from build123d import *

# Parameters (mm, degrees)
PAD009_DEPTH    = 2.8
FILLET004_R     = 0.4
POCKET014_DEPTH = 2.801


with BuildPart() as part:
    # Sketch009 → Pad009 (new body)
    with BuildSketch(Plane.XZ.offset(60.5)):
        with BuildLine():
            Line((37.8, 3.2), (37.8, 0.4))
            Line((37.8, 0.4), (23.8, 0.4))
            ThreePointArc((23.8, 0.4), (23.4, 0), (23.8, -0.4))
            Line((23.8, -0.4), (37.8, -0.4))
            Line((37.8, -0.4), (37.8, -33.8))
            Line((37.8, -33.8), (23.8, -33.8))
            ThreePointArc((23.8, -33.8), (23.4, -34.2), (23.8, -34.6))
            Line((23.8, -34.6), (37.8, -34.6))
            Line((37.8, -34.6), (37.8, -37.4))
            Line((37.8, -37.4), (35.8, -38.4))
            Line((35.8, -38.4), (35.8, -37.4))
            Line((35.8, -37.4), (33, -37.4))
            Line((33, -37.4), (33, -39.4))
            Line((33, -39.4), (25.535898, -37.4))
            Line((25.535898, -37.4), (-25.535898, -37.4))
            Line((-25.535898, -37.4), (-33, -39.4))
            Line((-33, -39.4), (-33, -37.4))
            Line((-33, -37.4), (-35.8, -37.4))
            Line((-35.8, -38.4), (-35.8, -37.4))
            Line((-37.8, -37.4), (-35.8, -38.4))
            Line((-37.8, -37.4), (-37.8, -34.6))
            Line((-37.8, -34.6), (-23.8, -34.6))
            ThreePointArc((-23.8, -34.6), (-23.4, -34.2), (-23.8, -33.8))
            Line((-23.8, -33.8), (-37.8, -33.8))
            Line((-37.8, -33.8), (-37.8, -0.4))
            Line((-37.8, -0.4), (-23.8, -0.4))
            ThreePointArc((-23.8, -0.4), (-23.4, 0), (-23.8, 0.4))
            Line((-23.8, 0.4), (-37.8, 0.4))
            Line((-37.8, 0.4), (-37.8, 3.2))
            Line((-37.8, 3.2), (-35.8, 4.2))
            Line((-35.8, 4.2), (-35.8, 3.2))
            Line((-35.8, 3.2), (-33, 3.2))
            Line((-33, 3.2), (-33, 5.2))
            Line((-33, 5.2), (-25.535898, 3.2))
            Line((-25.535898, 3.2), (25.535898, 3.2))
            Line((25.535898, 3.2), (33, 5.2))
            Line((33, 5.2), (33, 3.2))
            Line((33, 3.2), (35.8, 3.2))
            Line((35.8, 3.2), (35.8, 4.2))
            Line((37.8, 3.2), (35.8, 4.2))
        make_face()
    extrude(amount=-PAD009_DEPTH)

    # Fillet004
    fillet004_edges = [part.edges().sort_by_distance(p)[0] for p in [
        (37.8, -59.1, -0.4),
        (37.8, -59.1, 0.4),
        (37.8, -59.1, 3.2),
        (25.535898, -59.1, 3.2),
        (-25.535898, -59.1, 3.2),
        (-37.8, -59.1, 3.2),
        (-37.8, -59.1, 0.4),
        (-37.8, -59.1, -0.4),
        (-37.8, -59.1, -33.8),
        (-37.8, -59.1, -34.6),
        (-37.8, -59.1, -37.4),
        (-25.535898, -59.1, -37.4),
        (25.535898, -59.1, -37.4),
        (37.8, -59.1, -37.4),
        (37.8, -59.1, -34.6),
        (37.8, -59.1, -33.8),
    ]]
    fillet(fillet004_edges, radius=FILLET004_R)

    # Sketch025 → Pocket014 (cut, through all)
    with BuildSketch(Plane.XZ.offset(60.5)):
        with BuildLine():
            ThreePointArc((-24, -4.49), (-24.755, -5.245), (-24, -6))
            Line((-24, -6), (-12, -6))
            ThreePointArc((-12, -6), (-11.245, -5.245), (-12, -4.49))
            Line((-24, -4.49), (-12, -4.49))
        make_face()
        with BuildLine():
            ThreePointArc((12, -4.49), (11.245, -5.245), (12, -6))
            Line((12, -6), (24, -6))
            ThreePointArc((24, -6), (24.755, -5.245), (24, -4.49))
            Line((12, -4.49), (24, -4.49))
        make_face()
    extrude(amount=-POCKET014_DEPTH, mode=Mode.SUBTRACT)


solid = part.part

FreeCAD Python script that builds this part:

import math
import FreeCAD as App
import Part
import Sketcher

V = App.Vector
Q = App.Units.Quantity


def edges_at(feature, points):
    """Names of the edges that pass closest to the given points."""
    edges = feature.Shape.Edges
    near = lambda p: min(range(len(edges)), key=lambda i: edges[i].distToShape(Part.Vertex(*p))[0])
    return sorted({f"Edge{near(p) + 1}" for p in points})

doc = App.newDocument("Part")
body = doc.addObject("PartDesign::Body", "Body")

# Sketch on XZ plane
sketch1 = body.newObject("Sketcher::SketchObject", "Sketch")
sketch1.AttachmentSupport = (doc.getObject("XZ_Plane"), [""])
sketch1.MapMode = "FlatFace"
sketch1.AttachmentOffset = App.Placement(V(0, 0, 60.5), App.Rotation())
sketch1.addGeometry([
    Part.LineSegment(V(37.8, 0.4, 0), V(37.8, 3.2, 0)),  # 0
    Part.LineSegment(V(37.8, 3.2, 0), V(35.8, 4.2, 0)),  # 1
    Part.LineSegment(V(35.8, 4.2, 0), V(35.8, 3.2, 0)),  # 2
    Part.LineSegment(V(35.8, 3.2, 0), V(33, 3.2, 0)),  # 3
    Part.LineSegment(V(33, 3.2, 0), V(33, 5.2, 0)),  # 4
    Part.LineSegment(V(33, 5.2, 0), V(25.54, 3.2, 0)),  # 5
    Part.LineSegment(V(25.54, 3.2, 0), V(-25.54, 3.2, 0)),  # 6
    Part.LineSegment(V(-25.54, 3.2, 0), V(-33, 5.2, 0)),  # 7
    Part.LineSegment(V(-33, 5.2, 0), V(-33, 3.2, 0)),  # 8
    Part.LineSegment(V(-33, 3.2, 0), V(-35.8, 3.2, 0)),  # 9
    Part.LineSegment(V(-35.8, 3.2, 0), V(-35.8, 4.2, 0)),  # 10
    Part.LineSegment(V(-35.8, 4.2, 0), V(-37.8, 3.2, 0)),  # 11
    Part.LineSegment(V(-37.8, 3.2, 0), V(-37.8, 0.4, 0)),  # 12
    Part.LineSegment(V(-37.8, 0.4, 0), V(-23.8, 0.4, 0)),  # 13
    Part.ArcOfCircle(Part.Circle(V(-23.8, 0, 0), V(0, 0, 1), 0.4), math.radians(-90), math.radians(90)),  # 14
    Part.LineSegment(V(-23.8, -0.4, 0), V(-37.8, -0.4, 0)),  # 15
    Part.LineSegment(V(-37.8, -0.4, 0), V(-37.8, -33.8, 0)),  # 16
    Part.LineSegment(V(-37.8, -33.8, 0), V(-23.8, -33.8, 0)),  # 17
    Part.ArcOfCircle(Part.Circle(V(-23.8, -34.2, 0), V(0, 0, 1), 0.4), math.radians(-90), math.radians(90)),  # 18
    Part.LineSegment(V(-23.8, -34.6, 0), V(-37.8, -34.6, 0)),  # 19
    Part.LineSegment(V(-37.8, -34.6, 0), V(-37.8, -37.4, 0)),  # 20
    Part.LineSegment(V(-37.8, -37.4, 0), V(-35.8, -38.4, 0)),  # 21
    Part.LineSegment(V(-35.8, -38.4, 0), V(-35.8, -37.4, 0)),  # 22
    Part.LineSegment(V(-35.8, -37.4, 0), V(-33, -37.4, 0)),  # 23
    Part.LineSegment(V(-33, -37.4, 0), V(-33, -39.4, 0)),  # 24
    Part.LineSegment(V(-33, -39.4, 0), V(-25.54, -37.4, 0)),  # 25
    Part.LineSegment(V(-25.54, -37.4, 0), V(25.54, -37.4, 0)),  # 26
    Part.LineSegment(V(25.54, -37.4, 0), V(33, -39.4, 0)),  # 27
    Part.LineSegment(V(33, -39.4, 0), V(33, -37.4, 0)),  # 28
    Part.LineSegment(V(33, -37.4, 0), V(35.8, -37.4, 0)),  # 29
    Part.LineSegment(V(35.8, -37.4, 0), V(35.8, -38.4, 0)),  # 30
    Part.LineSegment(V(35.8, -38.4, 0), V(37.8, -37.4, 0)),  # 31
    Part.LineSegment(V(37.8, -37.4, 0), V(37.8, -34.6, 0)),  # 32
    Part.LineSegment(V(37.8, -34.6, 0), V(23.8, -34.6, 0)),  # 33
    Part.ArcOfCircle(Part.Circle(V(23.8, -34.2, 0), V(0, 0, 1), 0.4), math.radians(90), math.radians(270)),  # 34
    Part.LineSegment(V(23.8, -33.8, 0), V(37.8, -33.8, 0)),  # 35
    Part.LineSegment(V(37.8, -33.8, 0), V(37.8, -0.4, 0)),  # 36
    Part.LineSegment(V(37.8, -0.4, 0), V(23.8, -0.4, 0)),  # 37
    Part.ArcOfCircle(Part.Circle(V(23.8, 0, 0), V(0, 0, 1), 0.4), math.radians(90), math.radians(270)),  # 38
    Part.LineSegment(V(23.8, 0.4, 0), V(37.8, 0.4, 0)),  # 39
], False)
sketch1.addConstraint([
    Sketcher.Constraint("Coincident", 0, 2, 1, 1),
    Sketcher.Constraint("Coincident", 1, 2, 2, 1),
    Sketcher.Constraint("Coincident", 2, 2, 3, 1),
    Sketcher.Constraint("Coincident", 3, 2, 4, 1),
    Sketcher.Constraint("Coincident", 4, 2, 5, 1),
    Sketcher.Constraint("Coincident", 5, 2, 6, 1),
    Sketcher.Constraint("Coincident", 6, 2, 7, 1),
    Sketcher.Constraint("Coincident", 7, 2, 8, 1),
    Sketcher.Constraint("Coincident", 8, 2, 9, 1),
    Sketcher.Constraint("Coincident", 9, 2, 10, 1),
    Sketcher.Constraint("Coincident", 10, 2, 11, 1),
    Sketcher.Constraint("Coincident", 11, 2, 12, 1),
    Sketcher.Constraint("Coincident", 12, 2, 13, 1),
    Sketcher.Constraint("Tangent", 13, 2, 14, 2),
    Sketcher.Constraint("Tangent", 14, 1, 15, 1),
    Sketcher.Constraint("Coincident", 15, 2, 16, 1),
    Sketcher.Constraint("Coincident", 16, 2, 17, 1),
    Sketcher.Constraint("Tangent", 17, 2, 18, 2),
    Sketcher.Constraint("Tangent", 18, 1, 19, 1),
    Sketcher.Constraint("Coincident", 19, 2, 20, 1),
    Sketcher.Constraint("Coincident", 20, 2, 21, 1),
    Sketcher.Constraint("Coincident", 21, 2, 22, 1),
    Sketcher.Constraint("Coincident", 22, 2, 23, 1),
    Sketcher.Constraint("Coincident", 23, 2, 24, 1),
    Sketcher.Constraint("Coincident", 24, 2, 25, 1),
    Sketcher.Constraint("Coincident", 25, 2, 26, 1),
    Sketcher.Constraint("Coincident", 26, 2, 27, 1),
    Sketcher.Constraint("Coincident", 27, 2, 28, 1),
    Sketcher.Constraint("Coincident", 28, 2, 29, 1),
    Sketcher.Constraint("Coincident", 29, 2, 30, 1),
    Sketcher.Constraint("Coincident", 30, 2, 31, 1),
    Sketcher.Constraint("Coincident", 31, 2, 32, 1),
    Sketcher.Constraint("Coincident", 32, 2, 33, 1),
    Sketcher.Constraint("Tangent", 33, 2, 34, 2),
    Sketcher.Constraint("Tangent", 34, 1, 35, 1),
    Sketcher.Constraint("Coincident", 35, 2, 36, 1),
    Sketcher.Constraint("Coincident", 36, 2, 37, 1),
    Sketcher.Constraint("Tangent", 37, 2, 38, 2),
    Sketcher.Constraint("Tangent", 38, 1, 39, 1),
    Sketcher.Constraint("Coincident", 39, 2, 0, 1),
    Sketcher.Constraint("Vertical", 0),
    Sketcher.Constraint("Vertical", 2),
    Sketcher.Constraint("Horizontal", 3),
    Sketcher.Constraint("Vertical", 4),
    Sketcher.Constraint("Horizontal", 6),
    Sketcher.Constraint("Vertical", 8),
    Sketcher.Constraint("Horizontal", 9),
    Sketcher.Constraint("Vertical", 10),
    Sketcher.Constraint("Vertical", 12),
    Sketcher.Constraint("Horizontal", 13),
    Sketcher.Constraint("Horizontal", 15),
    Sketcher.Constraint("Vertical", 16),
    Sketcher.Constraint("Horizontal", 17),
    Sketcher.Constraint("Horizontal", 19),
    Sketcher.Constraint("Vertical", 20),
    Sketcher.Constraint("Vertical", 22),
    Sketcher.Constraint("Horizontal", 23),
    Sketcher.Constraint("Vertical", 24),
    Sketcher.Constraint("Horizontal", 26),
    Sketcher.Constraint("Vertical", 28),
    Sketcher.Constraint("Horizontal", 29),
    Sketcher.Constraint("Vertical", 30),
    Sketcher.Constraint("Vertical", 32),
    Sketcher.Constraint("Horizontal", 33),
    Sketcher.Constraint("Horizontal", 35),
    Sketcher.Constraint("Vertical", 36),
    Sketcher.Constraint("Horizontal", 37),
    Sketcher.Constraint("Horizontal", 39),
    Sketcher.Constraint("Equal", 14, 18),
    Sketcher.Constraint("Equal", 18, 34),
    Sketcher.Constraint("Equal", 34, 38),
    Sketcher.Constraint("Symmetric", 14, 3, 38, 3, -1, 1),
    Sketcher.Constraint("Symmetric", 18, 3, 34, 3, -2),
    Sketcher.Constraint("Symmetric", 4, 2, 7, 2, -2),
    Sketcher.Constraint("Symmetric", 2, 2, 9, 2, -2),
    Sketcher.Constraint("Symmetric", 0, 2, 11, 2, -2),
    Sketcher.Constraint("Symmetric", 24, 2, 27, 2, -2),
    Sketcher.Constraint("Symmetric", 22, 2, 29, 2, -2),
    Sketcher.Constraint("Symmetric", 20, 2, 31, 2, -2),
    Sketcher.Constraint("Symmetric", 15, 2, 36, 2, -2),
    Sketcher.Constraint("Parallel", 1, 21),
    Sketcher.Constraint("Parallel", 5, 25),
    Sketcher.Constraint("Parallel", 7, 27),
    Sketcher.Constraint("Parallel", 11, 31),
    Sketcher.Constraint("Horizontal", 0, 2, 2, 2),
    Sketcher.Constraint("Horizontal", 3, 2, 5, 2),
    Sketcher.Constraint("Horizontal", 1, 2, 10, 2),
    Sketcher.Constraint("Horizontal", 20, 2, 22, 2),
    Sketcher.Constraint("Horizontal", 23, 2, 25, 2),
    Sketcher.Constraint("Vertical", 14, 3, 18, 3),
    Sketcher.Constraint("Vertical", 12, 2, 15, 2),
    Sketcher.Constraint("Vertical", 16, 2, 19, 2),
    Sketcher.Constraint("Vertical", 10, 2, 21, 2),
    Sketcher.Constraint("Vertical", 8, 2, 23, 2),
    Sketcher.Constraint("Vertical", 6, 2, 25, 2),
    Sketcher.Constraint("Vertical", 5, 2, 26, 2),
    Sketcher.Constraint("Equal", 29, 0),
    Sketcher.Constraint("Equal", 12, 20),
    Sketcher.Constraint("Radius", 14, 0.4),
    Sketcher.Constraint("DistanceX", 13, 1, 13, 2, 14.0),
    Sketcher.Constraint("DistanceY", 2, 2, 2, 1, 1.0),
    Sketcher.Constraint("DistanceY", 4, 1, 4, 2, 2.0),
    Sketcher.Constraint("Angle", 5, Q("-165.000001 deg")),
    Sketcher.Constraint("DistanceX", 3, 2, 3, 1, 2.8),
    Sketcher.Constraint("DistanceY", 16, 2, 16, 1, 33.4),
    Sketcher.Constraint("DistanceX", -1, 1, 3, 2, 33.0),
    Sketcher.Constraint("DistanceX", 1, 2, 0, 2, 2.0),
])
pad1 = body.newObject("PartDesign::Pad", "Pad")
pad1.Profile = sketch1
pad1.Length = 2.8
pad1.Reversed = True
doc.recompute()

fillet = body.newObject("PartDesign::Fillet", "Fillet")
fillet.Base = (pad1, edges_at(pad1, [
    (37.8, -59.1, -0.4),
    (37.8, -59.1, 0.4),
    (37.8, -59.1, 3.2),
    (25.536, -59.1, 3.2),
    (-25.536, -59.1, 3.2),
    (-37.8, -59.1, 3.2),
    (-37.8, -59.1, 0.4),
    (-37.8, -59.1, -0.4),
    (-37.8, -59.1, -33.8),
    (-37.8, -59.1, -34.6),
    (-37.8, -59.1, -37.4),
    (-25.536, -59.1, -37.4),
    (25.536, -59.1, -37.4),
    (37.8, -59.1, -37.4),
    (37.8, -59.1, -34.6),
    (37.8, -59.1, -33.8),
]))
fillet.Radius = 0.4

# Sketch on XZ plane
sketch2 = body.newObject("Sketcher::SketchObject", "Sketch001")
sketch2.AttachmentSupport = (doc.getObject("XZ_Plane"), [""])
sketch2.MapMode = "FlatFace"
sketch2.AttachmentOffset = App.Placement(V(0, 0, 60.5), App.Rotation())
sketch2.addGeometry([
    Part.ArcOfCircle(Part.Circle(V(-24, -5.2, 0), V(0, 0, 1), 0.8), math.radians(90), math.radians(270)),  # 0
    Part.LineSegment(V(-24, -6, 0), V(-12, -6, 0)),  # 1
    Part.ArcOfCircle(Part.Circle(V(-12, -5.2, 0), V(0, 0, 1), 0.8), math.radians(-90), math.radians(90)),  # 2
    Part.LineSegment(V(-12, -4.5, 0), V(-24, -4.5, 0)),  # 3
    Part.ArcOfCircle(Part.Circle(V(12, -5.2, 0), V(0, 0, 1), 0.8), math.radians(90), math.radians(270)),  # 4
    Part.LineSegment(V(12, -6, 0), V(24, -6, 0)),  # 5
    Part.ArcOfCircle(Part.Circle(V(24, -5.2, 0), V(0, 0, 1), 0.8), math.radians(-90), math.radians(90)),  # 6
    Part.LineSegment(V(24, -4.5, 0), V(12, -4.5, 0)),  # 7
], False)
sketch2.addConstraint([
    Sketcher.Constraint("Tangent", 0, 2, 1, 1),
    Sketcher.Constraint("Tangent", 1, 2, 2, 1),
    Sketcher.Constraint("Tangent", 2, 2, 3, 1),
    Sketcher.Constraint("Tangent", 3, 2, 0, 1),
    Sketcher.Constraint("Tangent", 4, 2, 5, 1),
    Sketcher.Constraint("Tangent", 5, 2, 6, 1),
    Sketcher.Constraint("Tangent", 6, 2, 7, 1),
    Sketcher.Constraint("Tangent", 7, 2, 4, 1),
    Sketcher.Constraint("Horizontal", 1),
    Sketcher.Constraint("Horizontal", 3),
    Sketcher.Constraint("Horizontal", 5),
    Sketcher.Constraint("Horizontal", 7),
    Sketcher.Constraint("Equal", 2, 4),
    Sketcher.Constraint("Symmetric", 2, 3, 4, 3, -2),
    Sketcher.Constraint("Equal", 3, 5),
    Sketcher.Constraint("DistanceX", 1, 1, 1, 2, 12.0),
    Sketcher.Constraint("DistanceX", 0, 3, -1, 1, 24.0),
    Sketcher.Constraint("DistanceY", 0, 2, -1, 1, 6.0),
    Sketcher.Constraint("Radius", 0, 0.755),
])
pocket1 = body.newObject("PartDesign::Pocket", "Pocket")
pocket1.Profile = sketch2
pocket1.Type = "ThroughAll"

doc.recompute()
